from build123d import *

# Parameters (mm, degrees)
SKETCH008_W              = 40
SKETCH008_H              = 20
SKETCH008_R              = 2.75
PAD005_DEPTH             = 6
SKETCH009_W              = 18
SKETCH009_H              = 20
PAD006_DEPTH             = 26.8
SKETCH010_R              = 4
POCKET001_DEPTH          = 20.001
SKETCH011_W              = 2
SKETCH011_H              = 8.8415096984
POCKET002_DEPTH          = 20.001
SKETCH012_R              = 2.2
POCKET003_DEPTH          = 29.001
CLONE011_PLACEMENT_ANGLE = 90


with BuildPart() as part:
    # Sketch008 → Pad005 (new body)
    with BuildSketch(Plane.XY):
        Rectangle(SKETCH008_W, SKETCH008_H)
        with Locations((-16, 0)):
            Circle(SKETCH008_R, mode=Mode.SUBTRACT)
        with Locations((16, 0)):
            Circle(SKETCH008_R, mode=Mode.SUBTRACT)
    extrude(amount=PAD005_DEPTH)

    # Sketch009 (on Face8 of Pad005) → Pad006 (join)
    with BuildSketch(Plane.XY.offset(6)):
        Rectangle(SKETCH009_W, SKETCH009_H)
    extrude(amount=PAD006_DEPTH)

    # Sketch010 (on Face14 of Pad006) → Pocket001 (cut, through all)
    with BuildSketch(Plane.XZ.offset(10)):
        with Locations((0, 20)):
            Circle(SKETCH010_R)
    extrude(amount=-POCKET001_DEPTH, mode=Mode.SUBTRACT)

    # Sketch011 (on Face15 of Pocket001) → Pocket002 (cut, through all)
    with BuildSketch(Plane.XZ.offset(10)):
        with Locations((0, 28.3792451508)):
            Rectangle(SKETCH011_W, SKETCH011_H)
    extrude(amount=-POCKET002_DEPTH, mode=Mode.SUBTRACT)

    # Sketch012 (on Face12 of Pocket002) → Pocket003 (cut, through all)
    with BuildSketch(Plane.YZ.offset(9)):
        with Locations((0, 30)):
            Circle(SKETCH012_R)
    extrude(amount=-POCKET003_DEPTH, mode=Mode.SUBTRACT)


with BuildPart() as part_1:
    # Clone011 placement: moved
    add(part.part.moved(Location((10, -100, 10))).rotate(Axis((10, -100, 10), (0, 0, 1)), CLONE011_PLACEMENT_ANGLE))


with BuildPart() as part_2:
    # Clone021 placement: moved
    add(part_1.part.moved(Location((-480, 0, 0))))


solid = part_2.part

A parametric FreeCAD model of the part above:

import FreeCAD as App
import Part
import Sketcher
Q = App.Units.Quantity

doc = App.newDocument("Part")
body = doc.addObject("PartDesign::Body", "Body")

# Sketch on XY plane
sketch1 = body.newObject("Sketcher::SketchObject", "Sketch")
sketch1.AttachmentSupport = (doc.getObject("XY_Plane"), [""])
sketch1.MapMode = "FlatFace"
sketch1.addGeometry(Part.LineSegment(App.Vector(-20, 10, 0), App.Vector(-20, -10, 0)), False)
sketch1.addGeometry(Part.LineSegment(App.Vector(-20, -10, 0), App.Vector(20, -10, 0)), False)
sketch1.addGeometry(Part.LineSegment(App.Vector(20, -10, 0), App.Vector(20, 10, 0)), False)
sketch1.addGeometry(Part.LineSegment(App.Vector(20, 10, 0), App.Vector(-20, 10, 0)), False)
sketch1.addGeometry(Part.Circle(App.Vector(-16, 0, 0), App.Vector(0, 0, 1), 2.8), False)
sketch1.addGeometry(Part.Circle(App.Vector(16, 0, 0), App.Vector(0, 0, 1), 2.8), False)
sketch1.addConstraint(Sketcher.Constraint("Coincident", 0, 2, 1, 1))
sketch1.addConstraint(Sketcher.Constraint("Coincident", 1, 2, 2, 1))
sketch1.addConstraint(Sketcher.Constraint("Coincident", 2, 2, 3, 1))
sketch1.addConstraint(Sketcher.Constraint("Coincident", 3, 2, 0, 1))
sketch1.addConstraint(Sketcher.Constraint("Vertical", 0))
sketch1.addConstraint(Sketcher.Constraint("Horizontal", 1))
sketch1.addConstraint(Sketcher.Constraint("Vertical", 2))
sketch1.addConstraint(Sketcher.Constraint("Horizontal", 3))
sketch1.addConstraint(Sketcher.Constraint("Equal", 4, 5))
sketch1.addConstraint(Sketcher.Constraint("Symmetric", 4, 3, 5, 3, -1, 1))
sketch1.addConstraint(Sketcher.Constraint("Symmetric", 0, 2, 2, 2, -1, 1))
sketch1.addConstraint(Sketcher.Constraint("PointOnObject", 4, 3, -1))
sketch1.addConstraint(Sketcher.Constraint("Diameter", 4, Q("5.5 mm")))
sketch1.addConstraint(Sketcher.Constraint("DistanceX", 1, 1, 1, 2, Q("40 mm")))
sketch1.addConstraint(Sketcher.Constraint("DistanceY", 0, 2, 0, 1, Q("20 mm")))
sketch1.addConstraint(Sketcher.Constraint("DistanceX", 4, 3, -1, 1, Q("16 mm")))
pad1 = body.newObject("PartDesign::Pad", "Pad")
pad1.Profile = sketch1
pad1.Length = 6

# Sketch on XY plane
sketch2 = body.newObject("Sketcher::SketchObject", "Sketch001")
sketch2.AttachmentSupport = (doc.getObject("XY_Plane"), [""])
sketch2.MapMode = "FlatFace"
sketch2.AttachmentOffset = App.Placement(App.Vector(0, 0, 6), App.Rotation())
sketch2.addGeometry(Part.LineSegment(App.Vector(-9, 10, 0), App.Vector(-9, -10, 0)), False)
sketch2.addGeometry(Part.LineSegment(App.Vector(-9, -10, 0), App.Vector(9, -10, 0)), False)
sketch2.addGeometry(Part.LineSegment(App.Vector(9, -10, 0), App.Vector(9, 10, 0)), False)
sketch2.addGeometry(Part.LineSegment(App.Vector(9, 10, 0), App.Vector(-9, 10, 0)), False)
sketch2.addConstraint(Sketcher.Constraint("Coincident", 0, 2, 1, 1))
sketch2.addConstraint(Sketcher.Constraint("Coincident", 1, 2, 2, 1))
sketch2.addConstraint(Sketcher.Constraint("Coincident", 2, 2, 3, 1))
sketch2.addConstraint(Sketcher.Constraint("Coincident", 3, 2, 0, 1))
sketch2.addConstraint(Sketcher.Constraint("Vertical", 0))
sketch2.addConstraint(Sketcher.Constraint("Horizontal", 1))
sketch2.addConstraint(Sketcher.Constraint("Vertical", 2))
sketch2.addConstraint(Sketcher.Constraint("Horizontal", 3))
sketch2.addConstraint(Sketcher.Constraint("Symmetric", 0, 2, 2, 2, -1, 1))
sketch2.addConstraint(Sketcher.Constraint("DistanceX", 1, 1, 1, 2, Q("18 mm")))
sketch2.addConstraint(Sketcher.Constraint("DistanceY", 0, 2, 0, 1, Q("20 mm")))
pad2 = body.newObject("PartDesign::Pad", "Pad001")
pad2.Profile = sketch2
pad2.Length = 26.8

# Sketch on XZ plane
sketch3 = body.newObject("Sketcher::SketchObject", "Sketch002")
sketch3.AttachmentSupport = (doc.getObject("XZ_Plane"), [""])
sketch3.MapMode = "FlatFace"
sketch3.AttachmentOffset = App.Placement(App.Vector(0, 0, 10), App.Rotation())
sketch3.addGeometry(Part.Circle(App.Vector(0, 20, 0), App.Vector(0, 0, 1), 4), False)
sketch3.addConstraint(Sketcher.Constraint("PointOnObject", 0, 3, -2))
sketch3.addConstraint(Sketcher.Constraint("Diameter", 0, Q("8 mm")))
sketch3.addConstraint(Sketcher.Constraint("DistanceY", -1, 1, 0, 3, Q("20 mm")))
pocket1 = body.newObject("PartDesign::Pocket", "Pocket")
pocket1.Profile = sketch3
pocket1.Type = "ThroughAll"

# Sketch on XZ plane
sketch4 = body.newObject("Sketcher::SketchObject", "Sketch003")
sketch4.AttachmentSupport = (doc.getObject("XZ_Plane"), [""])
sketch4.MapMode = "FlatFace"
sketch4.AttachmentOffset = App.Placement(App.Vector(0, 0, 10), App.Rotation())
sketch4.addGeometry(Part.LineSegment(App.Vector(-1, 32.8, 0), App.Vector(-1, 24, 0)), False)
sketch4.addGeometry(Part.LineSegment(App.Vector(-1, 24, 0), App.Vector(1, 24, 0)), False)
sketch4.addGeometry(Part.LineSegment(App.Vector(1, 24, 0), App.Vector(1, 32.8, 0)), False)
sketch4.addGeometry(Part.LineSegment(App.Vector(1, 32.8, 0), App.Vector(-1, 32.8, 0)), False)
sketch4.addConstraint(Sketcher.Constraint("Coincident", 0, 2, 1, 1))
sketch4.addConstraint(Sketcher.Constraint("Coincident", 1, 2, 2, 1))
sketch4.addConstraint(Sketcher.Constraint("Coincident", 2, 2, 3, 1))
sketch4.addConstraint(Sketcher.Constraint("Coincident", 3, 2, 0, 1))
sketch4.addConstraint(Sketcher.Constraint("Vertical", 0))
sketch4.addConstraint(Sketcher.Constraint("Horizontal", 1))
sketch4.addConstraint(Sketcher.Constraint("Vertical", 2))
sketch4.addConstraint(Sketcher.Constraint("Horizontal", 3))
sketch4.addConstraint(Sketcher.Constraint("DistanceX", 1, 1, 1, 2, Q("2 mm")))
sketch4.addConstraint(Sketcher.Constraint("DistanceX", 0, 2, -1, 1, Q("1 mm")))
sketch4.addConstraint(Sketcher.Constraint("DistanceY", -1, 1, 2, 2, Q("32.8 mm")))
sketch4.addConstraint(Sketcher.Constraint("DistanceY", 0, 2, 0, 1, Q("8.84151 mm")))
pocket2 = body.newObject("PartDesign::Pocket", "Pocket001")
pocket2.Profile = sketch4
pocket2.Type = "ThroughAll"

# Sketch on YZ plane
sketch5 = body.newObject("Sketcher::SketchObject", "Sketch004")
sketch5.AttachmentSupport = (doc.getObject("YZ_Plane"), [""])
sketch5.MapMode = "FlatFace"
sketch5.AttachmentOffset = App.Placement(App.Vector(0, 0, 9), App.Rotation())
sketch5.addGeometry(Part.Circle(App.Vector(0, 30, 0), App.Vector(0, 0, 1), 2.2), False)
sketch5.addConstraint(Sketcher.Constraint("PointOnObject", 0, 3, -2))
sketch5.addConstraint(Sketcher.Constraint("Diameter", 0, Q("4.4 mm")))
sketch5.addConstraint(Sketcher.Constraint("DistanceY", -1, 1, 0, 3, Q("30 mm")))
pocket3 = body.newObject("PartDesign::Pocket", "Pocket002")
pocket3.Profile = sketch5
pocket3.Type = "ThroughAll"
body2 = doc.addObject("PartDesign::Body", "Body001")
doc.recompute()

body.Placement = App.Placement(App.Vector(10, -100, 10), App.Rotation(App.Vector(0, 0, 1), 90))
boolean = body2.newObject("PartDesign::Boolean", "Boolean")
boolean.Type = "Fuse"
boolean.addObjects([body])
body3 = doc.addObject("PartDesign::Body", "Body002")
doc.recompute()

body2.Placement = App.Placement(App.Vector(-480, 0, 0), App.Rotation(App.Vector(0, 0, 1), 0))
boolean2 = body3.newObject("PartDesign::Boolean", "Boolean001")
boolean2.Type = "Fuse"
boolean2.addObjects([body2])

doc.recompute()
